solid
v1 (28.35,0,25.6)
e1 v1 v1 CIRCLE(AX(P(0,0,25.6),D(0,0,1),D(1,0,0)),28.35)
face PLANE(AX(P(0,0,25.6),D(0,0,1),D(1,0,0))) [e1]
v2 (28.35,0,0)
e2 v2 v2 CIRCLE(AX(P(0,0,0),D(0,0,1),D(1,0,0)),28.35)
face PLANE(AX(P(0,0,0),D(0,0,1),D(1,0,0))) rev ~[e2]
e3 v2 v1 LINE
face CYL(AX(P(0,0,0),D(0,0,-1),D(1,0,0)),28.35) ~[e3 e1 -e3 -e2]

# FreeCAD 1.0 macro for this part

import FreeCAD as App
import Part
import Sketcher
Q = App.Units.Quantity

doc = App.newDocument("Part")
body = doc.addObject("PartDesign::Body", "Body")

# Sketch on XY plane
sketch1 = doc.addObject("Sketcher::SketchObject", "Sketch")
body.addObject(sketch1)
sketch1.AttachmentSupport = (doc.XY_Plane, [""])
sketch1.MapMode = "FlatFace"
sketch1.addGeometry(Part.Circle(App.Vector(0, 0, 0), App.Vector(0, 0, 1), 28), False)
sketch1.addConstraint(Sketcher.Constraint("Coincident", 0, 3, -1, 1))
sketch1.addConstraint(Sketcher.Constraint("Diameter", 0, Q("56.7 mm")))
pad1 = doc.addObject("PartDesign::Pad", "Pad")
body.addObject(pad1)
pad1.Profile = sketch1
pad1.Length = 25.6

doc.recompute()
